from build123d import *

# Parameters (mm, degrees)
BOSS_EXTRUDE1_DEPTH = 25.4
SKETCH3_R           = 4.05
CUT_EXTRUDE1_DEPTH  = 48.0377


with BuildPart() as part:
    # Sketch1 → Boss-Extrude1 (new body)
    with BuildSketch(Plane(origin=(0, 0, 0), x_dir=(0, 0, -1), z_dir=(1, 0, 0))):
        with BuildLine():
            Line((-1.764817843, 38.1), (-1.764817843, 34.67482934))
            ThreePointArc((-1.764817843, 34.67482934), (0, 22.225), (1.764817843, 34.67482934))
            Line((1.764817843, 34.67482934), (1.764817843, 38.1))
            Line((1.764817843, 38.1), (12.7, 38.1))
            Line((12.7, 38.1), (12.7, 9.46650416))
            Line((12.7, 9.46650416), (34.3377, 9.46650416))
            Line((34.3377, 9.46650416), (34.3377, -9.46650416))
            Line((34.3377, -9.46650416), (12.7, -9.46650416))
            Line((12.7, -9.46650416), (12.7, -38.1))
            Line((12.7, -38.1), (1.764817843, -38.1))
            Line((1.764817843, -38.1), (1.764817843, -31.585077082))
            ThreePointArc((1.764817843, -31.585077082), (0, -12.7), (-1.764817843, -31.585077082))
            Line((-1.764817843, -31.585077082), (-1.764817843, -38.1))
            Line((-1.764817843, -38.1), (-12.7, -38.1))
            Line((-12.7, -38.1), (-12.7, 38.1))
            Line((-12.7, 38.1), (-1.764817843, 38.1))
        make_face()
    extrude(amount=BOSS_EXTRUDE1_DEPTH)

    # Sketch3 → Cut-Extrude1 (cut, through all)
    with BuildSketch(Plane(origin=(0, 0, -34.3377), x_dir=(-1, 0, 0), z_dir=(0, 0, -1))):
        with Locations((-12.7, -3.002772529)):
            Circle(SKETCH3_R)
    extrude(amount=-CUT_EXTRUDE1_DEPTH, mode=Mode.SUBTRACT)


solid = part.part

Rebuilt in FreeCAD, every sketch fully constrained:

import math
import FreeCAD as App
import Part
import Sketcher
from FreeCAD import Vector
Q = App.Units.Quantity

doc = App.newDocument("Part")
params = doc.addObject("Spreadsheet::Sheet", "Params")
for row, (alias, value) in enumerate([
    ("sketch1_width", "3 in"),
    ("sketch1_radius", "0.25 in"),
    ("sketch1_radius2", "0.375 in"),
    ("pad1_length", "1 in"),
], start=1):
    params.set(f"A{row}", alias)
    params.set(f"B{row}", "=" + value)
    params.setAlias(f"B{row}", alias)

body = doc.addObject("PartDesign::Body", "Body")

# Sketch on YZ plane
sketch1 = body.newObject("Sketcher::SketchObject", "Sketch")
sketch1.AttachmentSupport = (doc.getObject("YZ_Plane"), [""])
sketch1.MapMode = "FlatFace"
sketch1.addGeometry([
    Part.LineSegment(Vector(34.7, 1.8, 0), Vector(38.1, 1.8, 0)),  # 0
    Part.LineSegment(Vector(38.1, 1.8, 0), Vector(38.1, 12.7, 0)),  # 1
    Part.LineSegment(Vector(38.1, 12.7, 0), Vector(-38.1, 12.7, 0)),  # 2
    Part.LineSegment(Vector(-38.1, 12.7, 0), Vector(-38.1, 1.8, 0)),  # 3
    Part.LineSegment(Vector(-38.1, 1.8, 0), Vector(-31.6, 1.8, 0)),  # 4
    Part.ArcOfCircle(Part.Circle(Vector(-22.2, 0, 0), Vector(0, 0, 1), 9.5), math.radians(-169), math.radians(169)),  # 5
    Part.LineSegment(Vector(-31.6, -1.8, 0), Vector(-38.1, -1.8, 0)),  # 6
    Part.LineSegment(Vector(-38.1, -1.8, 0), Vector(-38.1, -12.7, 0)),  # 7
    Part.LineSegment(Vector(-38.1, -12.7, 0), Vector(-9.5, -12.7, 0)),  # 8
    Part.LineSegment(Vector(-9.5, -12.7, 0), Vector(-9.5, -34.3, 0)),  # 9
    Part.LineSegment(Vector(-9.5, -34.3, 0), Vector(9.5, -34.3, 0)),  # 10
    Part.LineSegment(Vector(9.5, -34.3, 0), Vector(9.5, -12.7, 0)),  # 11
    Part.LineSegment(Vector(9.5, -12.7, 0), Vector(38.1, -12.7, 0)),  # 12
    Part.LineSegment(Vector(38.1, -12.7, 0), Vector(38.1, -1.8, 0)),  # 13
    Part.LineSegment(Vector(38.1, -1.8, 0), Vector(34.7, -1.8, 0)),  # 14
    Part.ArcOfCircle(Part.Circle(Vector(28.6, 0, 0), Vector(0, 0, 1), 6.3), math.radians(16), math.radians(344)),  # 15
], False)
sketch1.addConstraint([
    Sketcher.Constraint("Coincident", 0, 2, 1, 1),
    Sketcher.Constraint("Coincident", 1, 2, 2, 1),
    Sketcher.Constraint("Coincident", 2, 2, 3, 1),
    Sketcher.Constraint("Coincident", 3, 2, 4, 1),
    Sketcher.Constraint("Coincident", 4, 2, 5, 2),
    Sketcher.Constraint("Coincident", 5, 1, 6, 1),
    Sketcher.Constraint("Coincident", 6, 2, 7, 1),
    Sketcher.Constraint("Coincident", 7, 2, 8, 1),
    Sketcher.Constraint("Coincident", 8, 2, 9, 1),
    Sketcher.Constraint("Coincident", 9, 2, 10, 1),
    Sketcher.Constraint("Coincident", 10, 2, 11, 1),
    Sketcher.Constraint("Coincident", 11, 2, 12, 1),
    Sketcher.Constraint("Coincident", 12, 2, 13, 1),
    Sketcher.Constraint("Coincident", 13, 2, 14, 1),
    Sketcher.Constraint("Coincident", 14, 2, 15, 2),
    Sketcher.Constraint("Coincident", 15, 1, 0, 1),
    Sketcher.Constraint("Horizontal", 0),
    Sketcher.Constraint("Vertical", 1),
    Sketcher.Constraint("Horizontal", 2),
    Sketcher.Constraint("Vertical", 3),
    Sketcher.Constraint("Horizontal", 4),
    Sketcher.Constraint("Horizontal", 6),
    Sketcher.Constraint("Vertical", 7),
    Sketcher.Constraint("Horizontal", 8),
    Sketcher.Constraint("Vertical", 9),
    Sketcher.Constraint("Horizontal", 10),
    Sketcher.Constraint("Vertical", 11),
    Sketcher.Constraint("Horizontal", 12),
    Sketcher.Constraint("Vertical", 13),
    Sketcher.Constraint("Horizontal", 14),
    Sketcher.Constraint("Symmetric", 0, 2, 6, 2, -1, 1),
    Sketcher.Constraint("Symmetric", 2, 2, 12, 2, -1, 1),
    Sketcher.Constraint("Symmetric", 0, 2, 3, 2, -2),
    Sketcher.Constraint("Symmetric", 8, 2, 11, 2, -2),
    Sketcher.Constraint("Symmetric", 14, 2, 15, 1, -1),
    Sketcher.Constraint("PointOnObject", 5, 3, -1),
    Sketcher.Constraint("DistanceX", 2, 2, 2, 1, Q("3 in")),
    Sketcher.Constraint("Radius", 15, Q("0.25 in")),
    Sketcher.Constraint("Radius", 5, Q("0.375 in")),
    Sketcher.Constraint("DistanceX", 5, 3, 15, 3, Q("2 in")),
    Sketcher.Constraint("DistanceY", 12, 2, 1, 2, Q("1 in")),
    Sketcher.Constraint("DistanceX", 5, 3, -1, 1, Q("0.875 in")),
    Sketcher.Constraint("DistanceY", 9, 2, 9, 1, 21.6377),
    Sketcher.Constraint("DistanceX", 0, 1, 0, 2, 3.425171),
    Sketcher.Constraint("DistanceX", 10, 1, 10, 2, 18.933008),
])
sketch1.setExpression("Constraints[36]", "Params.sketch1_width")
sketch1.setExpression("Constraints[37]", "Params.sketch1_radius")
sketch1.setExpression("Constraints[38]", "Params.sketch1_radius2")
pad1 = body.newObject("PartDesign::Pad", "Pad")
pad1.Profile = sketch1
pad1.setExpression("Length", "Params.pad1_length")

# Sketch on XY plane
sketch2 = body.newObject("Sketcher::SketchObject", "Sketch001")
sketch2.AttachmentSupport = (doc.getObject("XY_Plane"), [""])
sketch2.MapMode = "FlatFace"
sketch2.AttachmentOffset = App.Placement(Vector(0, 0, -34.3377), App.Rotation())
sketch2.addGeometry(Part.Circle(Vector(12.7, -3, 0), Vector(0, 0, 1), 4), False)
sketch2.addConstraint([
    Sketcher.Constraint("DistanceX", -1, 1, 0, 3, Q("0.5 in")),
    Sketcher.Constraint("Diameter", 0, 8.1),
    Sketcher.Constraint("DistanceY", 0, 3, -1, 1, 3.002773),
])
pocket1 = body.newObject("PartDesign::Pocket", "Pocket")
pocket1.Profile = sketch2
pocket1.Type = "ThroughAll"
pocket1.Reversed = True

doc.recompute()
